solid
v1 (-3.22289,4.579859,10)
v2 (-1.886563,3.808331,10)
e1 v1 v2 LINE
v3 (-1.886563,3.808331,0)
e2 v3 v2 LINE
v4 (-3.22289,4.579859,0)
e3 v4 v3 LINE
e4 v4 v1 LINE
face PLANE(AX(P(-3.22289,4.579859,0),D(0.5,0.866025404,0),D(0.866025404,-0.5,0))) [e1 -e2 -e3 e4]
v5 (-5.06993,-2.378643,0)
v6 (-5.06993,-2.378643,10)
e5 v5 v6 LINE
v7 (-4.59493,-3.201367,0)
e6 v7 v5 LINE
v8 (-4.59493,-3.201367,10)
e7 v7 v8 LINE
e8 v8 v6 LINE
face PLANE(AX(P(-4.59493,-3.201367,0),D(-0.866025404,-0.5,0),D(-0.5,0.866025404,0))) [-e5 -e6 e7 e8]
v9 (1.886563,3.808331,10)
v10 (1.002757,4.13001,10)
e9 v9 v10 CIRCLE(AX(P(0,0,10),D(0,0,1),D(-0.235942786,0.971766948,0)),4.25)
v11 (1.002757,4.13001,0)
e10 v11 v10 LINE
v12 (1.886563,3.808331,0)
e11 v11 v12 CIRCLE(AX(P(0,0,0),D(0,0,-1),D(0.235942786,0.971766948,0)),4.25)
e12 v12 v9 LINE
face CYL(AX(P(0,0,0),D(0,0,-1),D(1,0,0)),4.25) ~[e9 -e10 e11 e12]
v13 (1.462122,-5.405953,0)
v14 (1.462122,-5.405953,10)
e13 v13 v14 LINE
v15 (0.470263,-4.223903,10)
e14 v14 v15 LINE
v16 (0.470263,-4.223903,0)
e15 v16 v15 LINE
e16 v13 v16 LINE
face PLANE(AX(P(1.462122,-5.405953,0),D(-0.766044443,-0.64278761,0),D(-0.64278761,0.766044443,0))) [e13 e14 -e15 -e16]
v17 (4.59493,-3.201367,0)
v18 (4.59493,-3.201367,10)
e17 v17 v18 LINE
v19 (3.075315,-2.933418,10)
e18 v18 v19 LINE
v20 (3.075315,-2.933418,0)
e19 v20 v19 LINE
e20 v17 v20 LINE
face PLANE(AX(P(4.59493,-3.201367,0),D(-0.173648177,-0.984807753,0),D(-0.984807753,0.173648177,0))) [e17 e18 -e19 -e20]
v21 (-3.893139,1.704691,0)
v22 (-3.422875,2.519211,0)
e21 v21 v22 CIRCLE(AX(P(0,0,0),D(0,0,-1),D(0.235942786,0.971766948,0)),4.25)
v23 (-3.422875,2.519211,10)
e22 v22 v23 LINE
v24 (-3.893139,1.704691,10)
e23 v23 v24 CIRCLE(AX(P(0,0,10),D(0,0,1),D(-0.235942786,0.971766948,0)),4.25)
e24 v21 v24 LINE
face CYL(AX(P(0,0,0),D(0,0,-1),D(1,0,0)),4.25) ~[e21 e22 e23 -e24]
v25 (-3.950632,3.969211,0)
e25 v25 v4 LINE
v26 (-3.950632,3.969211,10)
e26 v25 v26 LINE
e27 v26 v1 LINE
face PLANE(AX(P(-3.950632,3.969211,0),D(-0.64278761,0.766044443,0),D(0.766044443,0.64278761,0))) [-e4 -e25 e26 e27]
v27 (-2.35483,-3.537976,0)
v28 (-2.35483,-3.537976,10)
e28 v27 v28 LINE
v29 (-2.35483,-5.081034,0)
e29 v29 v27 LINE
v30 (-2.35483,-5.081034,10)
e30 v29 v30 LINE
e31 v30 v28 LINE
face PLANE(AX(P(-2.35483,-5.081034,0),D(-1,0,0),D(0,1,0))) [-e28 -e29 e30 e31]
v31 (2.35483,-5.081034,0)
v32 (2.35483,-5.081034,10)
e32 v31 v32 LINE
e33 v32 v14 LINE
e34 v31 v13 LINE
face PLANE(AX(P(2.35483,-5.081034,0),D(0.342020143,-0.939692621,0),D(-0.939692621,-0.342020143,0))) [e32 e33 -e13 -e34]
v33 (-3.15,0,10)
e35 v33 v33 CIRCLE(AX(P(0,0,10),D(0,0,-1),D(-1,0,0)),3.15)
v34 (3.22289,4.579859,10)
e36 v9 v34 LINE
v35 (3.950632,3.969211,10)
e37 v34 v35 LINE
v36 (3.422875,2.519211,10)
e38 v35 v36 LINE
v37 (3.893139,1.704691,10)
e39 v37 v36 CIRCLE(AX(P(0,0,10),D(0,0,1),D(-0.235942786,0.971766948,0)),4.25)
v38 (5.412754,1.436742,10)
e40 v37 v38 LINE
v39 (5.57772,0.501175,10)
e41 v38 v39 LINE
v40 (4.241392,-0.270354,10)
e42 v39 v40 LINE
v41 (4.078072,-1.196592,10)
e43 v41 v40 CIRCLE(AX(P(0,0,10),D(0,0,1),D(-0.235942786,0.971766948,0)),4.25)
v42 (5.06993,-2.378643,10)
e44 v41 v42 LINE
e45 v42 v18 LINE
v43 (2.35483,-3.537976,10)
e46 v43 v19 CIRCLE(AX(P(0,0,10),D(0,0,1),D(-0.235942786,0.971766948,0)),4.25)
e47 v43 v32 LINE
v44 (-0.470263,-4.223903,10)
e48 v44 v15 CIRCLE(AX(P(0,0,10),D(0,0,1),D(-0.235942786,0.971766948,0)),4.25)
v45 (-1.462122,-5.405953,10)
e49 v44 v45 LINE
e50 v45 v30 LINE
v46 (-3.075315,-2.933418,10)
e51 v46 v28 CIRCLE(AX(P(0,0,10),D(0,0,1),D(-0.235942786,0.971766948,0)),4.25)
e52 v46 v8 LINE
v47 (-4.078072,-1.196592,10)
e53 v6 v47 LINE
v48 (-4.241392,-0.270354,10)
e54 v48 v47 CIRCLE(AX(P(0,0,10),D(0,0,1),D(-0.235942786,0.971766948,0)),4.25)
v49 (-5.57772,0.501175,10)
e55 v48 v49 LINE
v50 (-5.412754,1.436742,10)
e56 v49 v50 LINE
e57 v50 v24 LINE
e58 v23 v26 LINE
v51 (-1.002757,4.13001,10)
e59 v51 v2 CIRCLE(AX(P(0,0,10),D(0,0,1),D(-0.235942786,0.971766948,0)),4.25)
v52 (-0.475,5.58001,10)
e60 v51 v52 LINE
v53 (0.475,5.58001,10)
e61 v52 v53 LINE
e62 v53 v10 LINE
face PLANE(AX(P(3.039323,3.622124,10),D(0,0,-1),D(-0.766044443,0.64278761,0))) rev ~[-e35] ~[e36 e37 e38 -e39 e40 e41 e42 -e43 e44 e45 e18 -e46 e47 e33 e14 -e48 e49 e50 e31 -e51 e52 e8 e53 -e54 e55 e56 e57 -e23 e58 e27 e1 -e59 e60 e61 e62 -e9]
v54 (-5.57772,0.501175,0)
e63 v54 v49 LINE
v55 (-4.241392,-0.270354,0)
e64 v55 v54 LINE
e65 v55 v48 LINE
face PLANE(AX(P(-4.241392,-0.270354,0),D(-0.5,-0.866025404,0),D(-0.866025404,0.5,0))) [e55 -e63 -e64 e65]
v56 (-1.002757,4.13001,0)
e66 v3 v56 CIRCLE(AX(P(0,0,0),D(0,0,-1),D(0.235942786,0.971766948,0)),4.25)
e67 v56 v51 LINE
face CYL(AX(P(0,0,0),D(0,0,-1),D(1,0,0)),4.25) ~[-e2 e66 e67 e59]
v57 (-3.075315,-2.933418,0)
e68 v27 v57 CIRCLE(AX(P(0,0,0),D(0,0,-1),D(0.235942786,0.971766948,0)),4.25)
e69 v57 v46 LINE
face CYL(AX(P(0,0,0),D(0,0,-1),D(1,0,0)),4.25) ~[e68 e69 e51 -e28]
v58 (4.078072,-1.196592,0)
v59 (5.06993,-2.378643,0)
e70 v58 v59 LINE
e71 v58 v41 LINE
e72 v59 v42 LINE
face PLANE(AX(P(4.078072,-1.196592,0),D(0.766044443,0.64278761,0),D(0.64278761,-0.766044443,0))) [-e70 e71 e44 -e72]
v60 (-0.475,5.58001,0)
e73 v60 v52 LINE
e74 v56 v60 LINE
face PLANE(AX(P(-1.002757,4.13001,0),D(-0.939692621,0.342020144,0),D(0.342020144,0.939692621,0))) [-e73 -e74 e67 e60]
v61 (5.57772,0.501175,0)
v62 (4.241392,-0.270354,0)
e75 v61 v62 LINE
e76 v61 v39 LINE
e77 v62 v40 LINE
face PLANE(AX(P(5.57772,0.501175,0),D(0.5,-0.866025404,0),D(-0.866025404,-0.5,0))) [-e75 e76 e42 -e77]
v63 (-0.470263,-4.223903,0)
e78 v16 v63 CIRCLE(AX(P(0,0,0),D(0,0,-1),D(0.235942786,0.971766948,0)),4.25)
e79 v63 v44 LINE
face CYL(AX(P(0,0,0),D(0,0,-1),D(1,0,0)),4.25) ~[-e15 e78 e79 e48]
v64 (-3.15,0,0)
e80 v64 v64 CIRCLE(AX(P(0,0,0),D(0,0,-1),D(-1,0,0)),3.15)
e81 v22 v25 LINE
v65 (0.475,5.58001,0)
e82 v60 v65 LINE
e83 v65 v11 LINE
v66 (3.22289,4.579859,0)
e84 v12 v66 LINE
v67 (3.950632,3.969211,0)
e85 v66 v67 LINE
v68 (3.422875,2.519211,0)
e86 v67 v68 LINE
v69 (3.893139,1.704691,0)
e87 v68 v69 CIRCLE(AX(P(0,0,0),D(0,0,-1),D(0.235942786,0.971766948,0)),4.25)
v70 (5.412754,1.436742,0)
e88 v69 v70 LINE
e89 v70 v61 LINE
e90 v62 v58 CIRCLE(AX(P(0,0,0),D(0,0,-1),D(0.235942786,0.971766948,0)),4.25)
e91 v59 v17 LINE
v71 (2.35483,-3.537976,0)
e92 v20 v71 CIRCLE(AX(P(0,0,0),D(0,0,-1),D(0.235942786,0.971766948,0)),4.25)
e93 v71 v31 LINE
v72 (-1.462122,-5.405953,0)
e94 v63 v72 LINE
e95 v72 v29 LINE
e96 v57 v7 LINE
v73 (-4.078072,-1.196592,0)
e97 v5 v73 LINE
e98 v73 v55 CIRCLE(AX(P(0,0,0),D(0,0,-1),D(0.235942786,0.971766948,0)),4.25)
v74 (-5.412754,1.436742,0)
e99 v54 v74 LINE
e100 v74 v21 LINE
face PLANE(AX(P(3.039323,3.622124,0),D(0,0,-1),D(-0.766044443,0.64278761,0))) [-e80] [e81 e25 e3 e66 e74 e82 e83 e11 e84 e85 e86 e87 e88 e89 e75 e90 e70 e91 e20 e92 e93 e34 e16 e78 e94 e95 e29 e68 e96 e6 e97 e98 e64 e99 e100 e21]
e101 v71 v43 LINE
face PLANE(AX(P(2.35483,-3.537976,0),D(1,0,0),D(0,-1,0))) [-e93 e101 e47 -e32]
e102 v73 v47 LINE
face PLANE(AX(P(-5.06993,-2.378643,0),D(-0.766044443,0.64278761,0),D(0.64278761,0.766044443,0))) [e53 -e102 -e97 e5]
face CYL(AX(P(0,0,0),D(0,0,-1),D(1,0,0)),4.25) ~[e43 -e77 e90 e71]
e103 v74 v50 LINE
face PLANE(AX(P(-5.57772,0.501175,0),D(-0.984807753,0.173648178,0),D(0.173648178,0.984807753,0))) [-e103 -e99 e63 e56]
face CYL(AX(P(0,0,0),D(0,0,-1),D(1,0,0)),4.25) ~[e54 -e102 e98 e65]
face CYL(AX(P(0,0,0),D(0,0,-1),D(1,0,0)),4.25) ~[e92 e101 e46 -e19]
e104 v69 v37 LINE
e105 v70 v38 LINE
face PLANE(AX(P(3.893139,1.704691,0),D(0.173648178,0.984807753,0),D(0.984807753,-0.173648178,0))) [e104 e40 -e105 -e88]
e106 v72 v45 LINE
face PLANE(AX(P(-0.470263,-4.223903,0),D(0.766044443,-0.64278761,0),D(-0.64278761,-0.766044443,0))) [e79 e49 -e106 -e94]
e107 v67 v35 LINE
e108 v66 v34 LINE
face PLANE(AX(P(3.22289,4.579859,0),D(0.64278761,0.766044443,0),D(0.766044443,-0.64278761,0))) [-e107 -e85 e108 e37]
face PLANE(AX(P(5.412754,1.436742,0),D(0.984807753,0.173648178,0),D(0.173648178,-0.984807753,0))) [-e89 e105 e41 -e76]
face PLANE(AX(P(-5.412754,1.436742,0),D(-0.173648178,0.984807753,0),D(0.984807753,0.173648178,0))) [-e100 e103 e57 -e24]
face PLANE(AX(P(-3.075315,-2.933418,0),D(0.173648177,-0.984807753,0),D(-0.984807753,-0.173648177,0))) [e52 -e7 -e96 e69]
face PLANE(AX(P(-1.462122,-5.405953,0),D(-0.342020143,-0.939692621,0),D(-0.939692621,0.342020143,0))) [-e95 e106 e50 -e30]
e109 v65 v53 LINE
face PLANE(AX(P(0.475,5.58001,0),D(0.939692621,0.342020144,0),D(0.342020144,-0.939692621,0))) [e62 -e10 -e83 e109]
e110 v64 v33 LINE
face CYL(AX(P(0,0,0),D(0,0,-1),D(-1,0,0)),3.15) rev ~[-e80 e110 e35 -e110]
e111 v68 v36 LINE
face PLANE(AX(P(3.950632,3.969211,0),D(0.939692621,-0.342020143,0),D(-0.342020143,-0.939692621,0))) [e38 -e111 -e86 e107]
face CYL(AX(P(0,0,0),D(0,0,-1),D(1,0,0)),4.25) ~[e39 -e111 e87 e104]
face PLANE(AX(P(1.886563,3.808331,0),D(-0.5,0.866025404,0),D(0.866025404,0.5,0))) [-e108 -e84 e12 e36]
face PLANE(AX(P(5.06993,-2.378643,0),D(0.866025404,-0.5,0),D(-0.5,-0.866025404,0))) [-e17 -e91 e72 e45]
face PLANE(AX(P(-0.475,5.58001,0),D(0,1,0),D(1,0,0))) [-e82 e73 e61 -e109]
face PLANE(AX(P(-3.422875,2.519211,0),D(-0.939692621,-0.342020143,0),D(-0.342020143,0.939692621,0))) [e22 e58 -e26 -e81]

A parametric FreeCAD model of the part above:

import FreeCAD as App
import Part
import Sketcher
Q = App.Units.Quantity

doc = App.newDocument("Part")
params = doc.addObject("Spreadsheet::Sheet", "Params")
for row, (alias, value) in enumerate([
    ("sketch1_diameter", "8.5 mm"),
    ("pad1_length", "10 mm"),
    ("sketch2_diameter", "6.3 mm"),
    ("sketch3_width", "0.95 mm"),
    ("pad2_length", "10 mm"),
], start=1):
    params.set(f"A{row}", alias)
    params.set(f"B{row}", "=" + value)
    params.setAlias(f"B{row}", alias)

body = doc.addObject("PartDesign::Body", "Body")

# Sketch on XY plane
sketch1 = body.newObject("Sketcher::SketchObject", "Sketch")
sketch1.AttachmentSupport = (doc.getObject("XY_Plane"), [""])
sketch1.MapMode = "FlatFace"
sketch1.addGeometry(Part.Circle(App.Vector(0, 0, 0), App.Vector(0, 0, 1), 4.25), False)
sketch1.addConstraint(Sketcher.Constraint("Coincident", 0, 3, -1, 1))
sketch1.addConstraint(Sketcher.Constraint("Diameter", 0, 8.5))
sketch1.setExpression("Constraints[1]", "Params.sketch1_diameter")
pad1 = body.newObject("PartDesign::Pad", "Pad")
pad1.Profile = sketch1
pad1.setExpression("Length", "Params.pad1_length")

# Sketch on XY plane
sketch2 = body.newObject("Sketcher::SketchObject", "Sketch001")
sketch2.AttachmentSupport = (doc.getObject("XY_Plane"), [""])
sketch2.MapMode = "FlatFace"
sketch2.addGeometry(Part.Circle(App.Vector(0, 0, 0), App.Vector(0, 0, 1), 3.15), False)
sketch2.addConstraint(Sketcher.Constraint("Coincident", 0, 3, -1, 1))
sketch2.addConstraint(Sketcher.Constraint("Diameter", 0, 6.3))
sketch2.setExpression("Constraints[1]", "Params.sketch2_diameter")
pocket1 = body.newObject("PartDesign::Pocket", "Pocket")
pocket1.Profile = sketch2
pocket1.Type = "ThroughAll"
pocket1.Reversed = True

# Sketch on XY plane
sketch3 = body.newObject("Sketcher::SketchObject", "Sketch002")
sketch3.AttachmentSupport = (doc.getObject("XY_Plane"), [""])
sketch3.MapMode = "FlatFace"
sketch3.addGeometry(Part.LineSegment(App.Vector(0.475, 5.58001, 0), App.Vector(-0.475, 5.58001, 0)), False)
sketch3.addGeometry(Part.LineSegment(App.Vector(-0.475, 5.58001, 0), App.Vector(-1.002757, 4.13001, 0)), False)
sketch3.addGeometry(Part.LineSegment(App.Vector(-1.002757, 4.13001, 0), App.Vector(1.002757, 4.13001, 0)), False)
sketch3.addGeometry(Part.LineSegment(App.Vector(1.002757, 4.13001, 0), App.Vector(0.475, 5.58001, 0)), False)
sketch3.addConstraint(Sketcher.Constraint("Coincident", 0, 2, 1, 1))
sketch3.addConstraint(Sketcher.Constraint("Coincident", 1, 2, 2, 1))
sketch3.addConstraint(Sketcher.Constraint("Coincident", 2, 2, 3, 1))
sketch3.addConstraint(Sketcher.Constraint("Coincident", 3, 2, 0, 1))
sketch3.addConstraint(Sketcher.Constraint("Horizontal", 0))
sketch3.addConstraint(Sketcher.Constraint("Horizontal", 2))
sketch3.addConstraint(Sketcher.Constraint("Equal", 1, 3))
sketch3.addConstraint(Sketcher.Constraint("Angle", 1, Q("-110 deg")))
sketch3.addConstraint(Sketcher.Constraint("DistanceX", 0, 2, 0, 1, 0.95))
sketch3.addConstraint(Sketcher.Constraint("DistanceY", 1, 2, 0, 2, 1.45))
sketch3.addConstraint(Sketcher.Constraint("DistanceX", 0, 2, -1, 1, 0.475))
sketch3.addConstraint(Sketcher.Constraint("DistanceY", -1, 1, 0, 2, 5.58001))
sketch3.setExpression("Constraints[8]", "Params.sketch3_width")
pad2 = body.newObject("PartDesign::Pad", "Pad001")
pad2.Profile = sketch3
pad2.setExpression("Length", "Params.pad2_length")
doc.recompute()

polarpattern = body.newObject("PartDesign::PolarPattern", "PolarPattern")
polarpattern.Originals = [pad2]
polarpattern.Axis = (doc.getObject("Z_Axis"), [""])
polarpattern.Angle = 360
polarpattern.Occurrences = 9
body.Tip = polarpattern

doc.recompute()
